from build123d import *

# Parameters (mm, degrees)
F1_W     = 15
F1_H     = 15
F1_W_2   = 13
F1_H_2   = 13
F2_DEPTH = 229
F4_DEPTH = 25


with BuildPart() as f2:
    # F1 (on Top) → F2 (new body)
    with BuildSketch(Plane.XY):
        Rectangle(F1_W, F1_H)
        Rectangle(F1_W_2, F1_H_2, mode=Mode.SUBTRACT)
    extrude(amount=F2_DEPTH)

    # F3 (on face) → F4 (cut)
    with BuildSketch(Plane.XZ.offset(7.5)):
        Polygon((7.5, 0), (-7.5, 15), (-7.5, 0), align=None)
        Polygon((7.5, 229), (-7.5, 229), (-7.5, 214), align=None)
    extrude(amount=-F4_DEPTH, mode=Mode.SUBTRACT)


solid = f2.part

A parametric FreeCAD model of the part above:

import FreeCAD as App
import Part
import Sketcher
Q = App.Units.Quantity


def add_polygon(sketch, points):
    """Adds a closed chain of lines whose ends are joined by coincident constraints."""
    first, n = sketch.GeometryCount, len(points)
    for a, b in zip(points, points[1:] + points[:1]):
        sketch.addGeometry(Part.LineSegment(App.Vector(*a, 0), App.Vector(*b, 0)), False)
    for i in range(n):
        sketch.addConstraint(Sketcher.Constraint("Coincident", first + i, 2, first + (i + 1) % n, 1))

doc = App.newDocument("Part")
params = doc.addObject("Spreadsheet::Sheet", "Params")
for row, (alias, value) in enumerate([
    ("sketch1_width", "15 mm"),
    ("sketch1_width2", "13 mm"),
    ("pad1_length", "229 mm"),
    ("sketch2_width", "15 mm"),
    ("pocket1_length", "25 mm"),
], start=1):
    params.set(f"A{row}", alias)
    params.set(f"B{row}", "=" + value)
    params.setAlias(f"B{row}", alias)

body = doc.addObject("PartDesign::Body", "Body")

sketch1 = body.newObject("Sketcher::SketchObject", "Sketch")
sketch1.AttachmentSupport = (doc.getObject("XY_Plane"), [""])
sketch1.MapMode = "FlatFace"
add_polygon(sketch1, [(-8, 8), (-8, -8), (8, -8), (8, 8)])
add_polygon(sketch1, [(6, -6), (-6, -6), (-6, 6), (6, 6)])
sketch1.addConstraint(Sketcher.Constraint("Vertical", 0))
sketch1.addConstraint(Sketcher.Constraint("Horizontal", 1))
sketch1.addConstraint(Sketcher.Constraint("Vertical", 2))
sketch1.addConstraint(Sketcher.Constraint("Horizontal", 3))
sketch1.addConstraint(Sketcher.Constraint("Horizontal", 4))
sketch1.addConstraint(Sketcher.Constraint("Vertical", 5))
sketch1.addConstraint(Sketcher.Constraint("Horizontal", 6))
sketch1.addConstraint(Sketcher.Constraint("Vertical", 7))
sketch1.addConstraint(Sketcher.Constraint("Symmetric", 0, 2, 2, 2, -1, 1))
sketch1.addConstraint(Sketcher.Constraint("Symmetric", 4, 2, 6, 2, -1, 1))
sketch1.addConstraint(Sketcher.Constraint("Equal", 3, 0))
sketch1.addConstraint(Sketcher.Constraint("Equal", 6, 5))
sketch1.addConstraint(Sketcher.Constraint("DistanceX", 1, 1, 1, 2, Q("15 mm")))
sketch1.addConstraint(Sketcher.Constraint("DistanceX", 4, 2, 4, 1, Q("13 mm")))
sketch1.setExpression("Constraints[20]", "Params.sketch1_width")
sketch1.setExpression("Constraints[21]", "Params.sketch1_width2")
pad1 = body.newObject("PartDesign::Pad", "Pad")
pad1.Profile = sketch1
pad1.setExpression("Length", "Params.pad1_length")

sketch2 = body.newObject("Sketcher::SketchObject", "Sketch001")
sketch2.AttachmentSupport = (doc.getObject("XZ_Plane"), [""])
sketch2.MapMode = "FlatFace"
sketch2.AttachmentOffset = App.Placement(App.Vector(0, 0, 7.5), App.Rotation())
add_polygon(sketch2, [(8, 0), (-8, 15), (-8, 0)])
add_polygon(sketch2, [(8, 229), (-8, 229), (-8, 214)])
sketch2.addConstraint(Sketcher.Constraint("Vertical", 1))
sketch2.addConstraint(Sketcher.Constraint("Horizontal", 2))
sketch2.addConstraint(Sketcher.Constraint("Horizontal", 3))
sketch2.addConstraint(Sketcher.Constraint("Vertical", 4))
sketch2.addConstraint(Sketcher.Constraint("Symmetric", 1, 2, 2, 2, -1, 1))
sketch2.addConstraint(Sketcher.Constraint("Perpendicular", 0, 5))
sketch2.addConstraint(Sketcher.Constraint("Vertical", 1, 2, 3, 2))
sketch2.addConstraint(Sketcher.Constraint("Vertical", 2, 2, 5, 2))
sketch2.addConstraint(Sketcher.Constraint("Equal", 3, 1))
sketch2.addConstraint(Sketcher.Constraint("DistanceX", 2, 1, 2, 2, Q("15 mm")))
sketch2.addConstraint(Sketcher.Constraint("DistanceY", -1, 1, 3, 2, Q("229 mm")))
sketch2.setExpression("Constraints[15]", "Params.sketch2_width")
pocket1 = body.newObject("PartDesign::Pocket", "Pocket")
pocket1.Profile = sketch2
pocket1.setExpression("Length", "Params.pocket1_length")

doc.recompute()
